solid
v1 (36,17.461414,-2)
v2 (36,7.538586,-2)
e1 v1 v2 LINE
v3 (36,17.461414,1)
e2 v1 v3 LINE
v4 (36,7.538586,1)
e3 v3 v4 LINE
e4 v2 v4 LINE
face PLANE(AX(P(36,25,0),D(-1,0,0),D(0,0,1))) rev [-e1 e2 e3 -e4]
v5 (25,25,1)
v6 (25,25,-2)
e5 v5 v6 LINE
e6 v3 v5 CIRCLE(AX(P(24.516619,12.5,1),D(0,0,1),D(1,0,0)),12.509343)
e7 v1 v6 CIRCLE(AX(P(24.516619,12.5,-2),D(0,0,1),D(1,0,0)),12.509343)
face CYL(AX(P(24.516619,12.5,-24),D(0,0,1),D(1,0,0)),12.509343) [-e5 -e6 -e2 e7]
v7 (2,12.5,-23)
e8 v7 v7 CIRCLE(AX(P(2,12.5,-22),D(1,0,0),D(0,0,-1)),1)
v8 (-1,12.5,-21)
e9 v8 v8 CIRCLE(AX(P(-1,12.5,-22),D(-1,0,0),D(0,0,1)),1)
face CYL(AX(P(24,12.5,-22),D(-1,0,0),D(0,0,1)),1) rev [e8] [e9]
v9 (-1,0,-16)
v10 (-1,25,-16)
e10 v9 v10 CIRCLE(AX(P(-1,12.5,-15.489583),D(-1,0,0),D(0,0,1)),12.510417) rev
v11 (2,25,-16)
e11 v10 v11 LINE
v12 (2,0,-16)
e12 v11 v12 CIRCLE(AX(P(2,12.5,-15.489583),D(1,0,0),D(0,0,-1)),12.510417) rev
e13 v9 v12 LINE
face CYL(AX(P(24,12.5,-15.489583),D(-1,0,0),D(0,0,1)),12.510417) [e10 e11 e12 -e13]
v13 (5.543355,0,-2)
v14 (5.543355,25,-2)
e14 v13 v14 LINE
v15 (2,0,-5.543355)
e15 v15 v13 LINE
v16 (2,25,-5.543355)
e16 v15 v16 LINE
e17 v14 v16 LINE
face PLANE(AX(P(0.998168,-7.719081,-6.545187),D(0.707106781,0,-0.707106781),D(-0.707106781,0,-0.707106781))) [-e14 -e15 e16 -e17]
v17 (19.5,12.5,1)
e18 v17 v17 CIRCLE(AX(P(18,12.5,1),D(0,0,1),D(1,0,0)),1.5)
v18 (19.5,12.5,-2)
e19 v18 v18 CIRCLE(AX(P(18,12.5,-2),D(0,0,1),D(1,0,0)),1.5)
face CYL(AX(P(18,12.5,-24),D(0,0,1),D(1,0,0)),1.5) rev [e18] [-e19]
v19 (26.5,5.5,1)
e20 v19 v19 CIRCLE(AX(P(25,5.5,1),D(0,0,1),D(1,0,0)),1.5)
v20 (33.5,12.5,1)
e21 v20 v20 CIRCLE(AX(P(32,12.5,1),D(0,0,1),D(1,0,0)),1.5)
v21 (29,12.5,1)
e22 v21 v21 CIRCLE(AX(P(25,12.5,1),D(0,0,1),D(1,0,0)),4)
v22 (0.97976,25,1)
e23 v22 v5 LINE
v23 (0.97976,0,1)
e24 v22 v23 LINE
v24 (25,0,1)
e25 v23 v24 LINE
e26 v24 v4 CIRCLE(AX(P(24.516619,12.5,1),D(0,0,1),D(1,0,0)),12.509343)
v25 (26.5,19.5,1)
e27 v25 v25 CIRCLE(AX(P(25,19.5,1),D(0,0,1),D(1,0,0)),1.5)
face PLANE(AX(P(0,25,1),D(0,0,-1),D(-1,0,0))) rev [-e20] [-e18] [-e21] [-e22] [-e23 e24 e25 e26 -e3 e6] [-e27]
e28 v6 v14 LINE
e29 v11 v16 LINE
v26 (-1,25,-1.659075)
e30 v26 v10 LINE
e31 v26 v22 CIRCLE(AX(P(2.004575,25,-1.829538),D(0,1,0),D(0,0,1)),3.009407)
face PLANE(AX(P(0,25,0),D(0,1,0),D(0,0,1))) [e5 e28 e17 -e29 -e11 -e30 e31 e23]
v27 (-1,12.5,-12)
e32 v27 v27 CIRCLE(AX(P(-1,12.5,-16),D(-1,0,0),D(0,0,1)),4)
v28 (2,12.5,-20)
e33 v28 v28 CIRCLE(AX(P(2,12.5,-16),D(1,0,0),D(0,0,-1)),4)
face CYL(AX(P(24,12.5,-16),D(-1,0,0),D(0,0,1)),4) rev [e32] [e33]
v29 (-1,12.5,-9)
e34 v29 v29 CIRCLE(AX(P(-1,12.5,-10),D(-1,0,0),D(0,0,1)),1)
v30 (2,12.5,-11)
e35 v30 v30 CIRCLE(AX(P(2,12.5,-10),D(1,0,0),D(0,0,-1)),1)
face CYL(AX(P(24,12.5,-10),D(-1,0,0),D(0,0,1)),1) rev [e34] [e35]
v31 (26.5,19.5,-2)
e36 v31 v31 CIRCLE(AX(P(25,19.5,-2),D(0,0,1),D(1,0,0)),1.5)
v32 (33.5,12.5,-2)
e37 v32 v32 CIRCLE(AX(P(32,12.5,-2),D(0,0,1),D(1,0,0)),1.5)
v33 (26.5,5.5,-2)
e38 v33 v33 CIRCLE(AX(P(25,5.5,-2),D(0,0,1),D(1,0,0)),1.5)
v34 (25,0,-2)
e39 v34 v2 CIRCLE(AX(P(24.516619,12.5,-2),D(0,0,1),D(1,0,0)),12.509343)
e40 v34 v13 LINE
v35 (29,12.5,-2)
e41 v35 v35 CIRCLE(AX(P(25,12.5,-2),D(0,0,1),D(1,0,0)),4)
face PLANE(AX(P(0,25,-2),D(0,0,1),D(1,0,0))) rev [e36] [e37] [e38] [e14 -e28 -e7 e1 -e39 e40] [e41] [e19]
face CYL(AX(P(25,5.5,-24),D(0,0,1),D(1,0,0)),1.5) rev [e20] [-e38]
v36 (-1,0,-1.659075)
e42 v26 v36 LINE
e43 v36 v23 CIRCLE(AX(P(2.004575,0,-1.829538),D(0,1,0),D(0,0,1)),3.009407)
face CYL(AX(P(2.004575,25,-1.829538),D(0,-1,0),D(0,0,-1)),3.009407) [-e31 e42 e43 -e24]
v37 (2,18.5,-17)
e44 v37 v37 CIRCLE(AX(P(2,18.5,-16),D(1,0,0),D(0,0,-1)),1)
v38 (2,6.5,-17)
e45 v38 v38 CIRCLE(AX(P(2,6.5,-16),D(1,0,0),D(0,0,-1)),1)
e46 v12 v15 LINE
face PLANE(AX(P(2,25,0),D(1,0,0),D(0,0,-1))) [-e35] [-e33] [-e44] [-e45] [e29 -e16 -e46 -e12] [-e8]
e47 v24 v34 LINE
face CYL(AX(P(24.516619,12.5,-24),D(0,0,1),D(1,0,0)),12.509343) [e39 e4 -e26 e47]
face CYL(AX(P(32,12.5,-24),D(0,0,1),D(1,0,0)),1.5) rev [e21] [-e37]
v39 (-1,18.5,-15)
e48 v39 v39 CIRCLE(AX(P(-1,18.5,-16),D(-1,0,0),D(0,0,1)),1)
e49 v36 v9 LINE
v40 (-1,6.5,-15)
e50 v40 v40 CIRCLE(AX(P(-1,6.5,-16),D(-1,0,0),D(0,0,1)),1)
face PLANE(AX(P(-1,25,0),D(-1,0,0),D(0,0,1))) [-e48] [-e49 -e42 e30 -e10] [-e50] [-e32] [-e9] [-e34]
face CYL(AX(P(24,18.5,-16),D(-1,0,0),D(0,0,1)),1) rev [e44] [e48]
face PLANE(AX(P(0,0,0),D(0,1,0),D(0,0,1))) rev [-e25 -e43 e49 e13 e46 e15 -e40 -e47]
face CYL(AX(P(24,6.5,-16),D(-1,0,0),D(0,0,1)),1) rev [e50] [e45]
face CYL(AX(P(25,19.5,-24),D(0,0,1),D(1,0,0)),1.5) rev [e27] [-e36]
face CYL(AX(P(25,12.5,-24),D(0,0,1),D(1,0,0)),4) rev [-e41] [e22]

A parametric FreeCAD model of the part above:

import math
import FreeCAD as App
import Part
import Sketcher
from FreeCAD import Vector


def add_polygon(sketch, points):
    """Adds a closed chain of lines whose ends are joined by coincident constraints."""
    first, n = sketch.GeometryCount, len(points)
    for a, b in zip(points, points[1:] + points[:1]):
        sketch.addGeometry(Part.LineSegment(App.Vector(*a, 0), App.Vector(*b, 0)), False)
    for i in range(n):
        sketch.addConstraint(Sketcher.Constraint("Coincident", first + i, 2, first + (i + 1) % n, 1))

doc = App.newDocument("Part")
body = doc.addObject("PartDesign::Body", "Body")

# Sketch on XZ plane
sketch1 = body.newObject("Sketcher::SketchObject", "Sketch")
sketch1.AttachmentSupport = (doc.getObject("XZ_Plane"), [""])
sketch1.MapMode = "FlatFace"
sketch1.addGeometry(Part.ArcOfCircle(Part.Circle(Vector(2, -1.83, 0), Vector(0, 0, 1), 3.01), math.radians(110), math.radians(177)), False)
sketch1.addGeometry(Part.LineSegment(Vector(0.98, 1, 0), Vector(36, 1, 0)), False)
sketch1.addGeometry(Part.LineSegment(Vector(36, 1, 0), Vector(36, -2, 0)), False)
sketch1.addGeometry(Part.LineSegment(Vector(36, -2, 0), Vector(3.04, -2, 0)), False)
sketch1.addGeometry(Part.ArcOfCircle(Part.Circle(Vector(3, -3, 0), Vector(0, 0, 1), 1), math.radians(87.97), math.radians(92.03)), False)
sketch1.addGeometry(Part.ArcOfCircle(Part.Circle(Vector(3, -3, 0), Vector(0, 0, 1), 1), math.radians(92), math.radians(178)), False)
sketch1.addGeometry(Part.LineSegment(Vector(2, -2.97, 0), Vector(2, -28, 0)), False)
sketch1.addGeometry(Part.LineSegment(Vector(2, -28, 0), Vector(-1, -28, 0)), False)
sketch1.addGeometry(Part.LineSegment(Vector(-1, -28, 0), Vector(-1, -1.66, 0)), False)
sketch1.addConstraint(Sketcher.Constraint("Coincident", 0, 1, 1, 1))
sketch1.addConstraint(Sketcher.Constraint("Coincident", 1, 2, 2, 1))
sketch1.addConstraint(Sketcher.Constraint("Coincident", 2, 2, 3, 1))
sketch1.addConstraint(Sketcher.Constraint("Coincident", 3, 2, 4, 1))
sketch1.addConstraint(Sketcher.Constraint("Tangent", 4, 2, 5, 1))
sketch1.addConstraint(Sketcher.Constraint("Coincident", 5, 2, 6, 1))
sketch1.addConstraint(Sketcher.Constraint("Coincident", 6, 2, 7, 1))
sketch1.addConstraint(Sketcher.Constraint("Coincident", 7, 2, 8, 1))
sketch1.addConstraint(Sketcher.Constraint("Coincident", 8, 2, 0, 2))
sketch1.addConstraint(Sketcher.Constraint("Horizontal", 1))
sketch1.addConstraint(Sketcher.Constraint("Vertical", 2))
sketch1.addConstraint(Sketcher.Constraint("Horizontal", 3))
sketch1.addConstraint(Sketcher.Constraint("Vertical", 6))
sketch1.addConstraint(Sketcher.Constraint("Horizontal", 7))
sketch1.addConstraint(Sketcher.Constraint("Vertical", 8))
sketch1.addConstraint(Sketcher.Constraint("Equal", 4, 5))
sketch1.addConstraint(Sketcher.Constraint("Horizontal", 3, 2, 4, 2))
sketch1.addConstraint(Sketcher.Constraint("Equal", 7, 2))
sketch1.addConstraint(Sketcher.Constraint("DistanceX", 7, 2, 7, 1, 3.0))
sketch1.addConstraint(Sketcher.Constraint("DistanceY", -1, 1, 0, 1, 1.0))
sketch1.addConstraint(Sketcher.Constraint("DistanceX", -1, 1, 1, 2, 36.0))
sketch1.addConstraint(Sketcher.Constraint("DistanceX", -1, 1, 5, 2, 2.0))
sketch1.addConstraint(Sketcher.Constraint("DistanceY", 6, 2, -1, 1, 28.0))
sketch1.addConstraint(Sketcher.Constraint("Radius", 5, 1.003779))
sketch1.addConstraint(Sketcher.Constraint("Radius", 0, 3.009407))
sketch1.addConstraint(Sketcher.Constraint("DistanceX", 1, 1, 1, 2, 35.02024))
sketch1.addConstraint(Sketcher.Constraint("DistanceX", 3, 2, 3, 1, 32.96127))
sketch1.addConstraint(Sketcher.Constraint("DistanceY", 6, 2, 6, 1, 25.032434))
sketch1.addConstraint(Sketcher.Constraint("DistanceY", 8, 1, 8, 2, 26.340925))
pad1 = body.newObject("PartDesign::Pad", "Pad")
pad1.Profile = sketch1
pad1.Length = 25
pad1.Reversed = True

# Sketch on YZ plane
sketch2 = body.newObject("Sketcher::SketchObject", "Sketch001")
sketch2.AttachmentSupport = (doc.getObject("YZ_Plane"), [""])
sketch2.MapMode = "FlatFace"
sketch2.AttachmentOffset = App.Placement(Vector(0, 0, -1), App.Rotation())
sketch2.addGeometry(Part.ArcOfCircle(Part.Circle(Vector(12, -15, 0), Vector(0, 0, 1), 13), math.radians(-90), math.radians(-2)), False)
sketch2.addGeometry(Part.LineSegment(Vector(25, -16, 0), Vector(25, -28, 0)), False)
sketch2.addGeometry(Part.LineSegment(Vector(25, -28, 0), Vector(12, -28, 0)), False)
sketch2.addGeometry(Part.ArcOfCircle(Part.Circle(Vector(12, -15, 0), Vector(0, 0, 1), 13), math.radians(-178), math.radians(-90)), False)
sketch2.addGeometry(Part.LineSegment(Vector(12, -28, 0), Vector(0, -28, 0)), False)
sketch2.addGeometry(Part.LineSegment(Vector(0, -28, 0), Vector(0, -16, 0)), False)
sketch2.addConstraint(Sketcher.Constraint("Coincident", 0, 2, 1, 1))
sketch2.addConstraint(Sketcher.Constraint("Coincident", 1, 2, 2, 1))
sketch2.addConstraint(Sketcher.Constraint("Tangent", 2, 2, 0, 1))
sketch2.addConstraint(Sketcher.Constraint("Tangent", 3, 2, 4, 1))
sketch2.addConstraint(Sketcher.Constraint("Coincident", 4, 2, 5, 1))
sketch2.addConstraint(Sketcher.Constraint("Coincident", 5, 2, 3, 1))
sketch2.addConstraint(Sketcher.Constraint("Vertical", 1))
sketch2.addConstraint(Sketcher.Constraint("Horizontal", 2))
sketch2.addConstraint(Sketcher.Constraint("Horizontal", 4))
sketch2.addConstraint(Sketcher.Constraint("Vertical", 5))
sketch2.addConstraint(Sketcher.Constraint("Coincident", 3, 3, 0, 3))
sketch2.addConstraint(Sketcher.Constraint("Equal", 0, 3))
sketch2.addConstraint(Sketcher.Constraint("PointOnObject", 4, 2, -2))
sketch2.addConstraint(Sketcher.Constraint("Horizontal", 0, 2, 5, 2))
sketch2.addConstraint(Sketcher.Constraint("DistanceY", 1, 2, 1, 1, 12.0))
sketch2.addConstraint(Sketcher.Constraint("DistanceX", 2, 2, 2, 1, 12.5))
sketch2.addConstraint(Sketcher.Constraint("DistanceY", 0, 2, -1, 1, 16.0))
pocket1 = body.newObject("PartDesign::Pocket", "Pocket")
pocket1.Profile = sketch2
pocket1.Length = 25
pocket1.Reversed = True

# Sketch on XY plane
sketch3 = body.newObject("Sketcher::SketchObject", "Sketch002")
sketch3.AttachmentSupport = (doc.getObject("XY_Plane"), [""])
sketch3.MapMode = "FlatFace"
sketch3.AttachmentOffset = App.Placement(Vector(0, 0, 1), App.Rotation())
sketch3.addGeometry(Part.LineSegment(Vector(36, 25, 0), Vector(25, 25, 0)), False)
sketch3.addGeometry(Part.ArcOfCircle(Part.Circle(Vector(25, 12, 0), Vector(0, 0, 1), 13), math.radians(23), math.radians(88)), False)
sketch3.addGeometry(Part.LineSegment(Vector(36, 17, 0), Vector(36, 25, 0)), False)
sketch3.addGeometry(Part.LineSegment(Vector(36, 0, 0), Vector(36, 8, 0)), False)
sketch3.addGeometry(Part.ArcOfCircle(Part.Circle(Vector(25, 12, 0), Vector(0, 0, 1), 13), math.radians(-88), math.radians(-23)), False)
sketch3.addGeometry(Part.LineSegment(Vector(25, 0, 0), Vector(36, 0, 0)), False)
sketch3.addConstraint(Sketcher.Constraint("Coincident", 0, 2, 1, 2))
sketch3.addConstraint(Sketcher.Constraint("Coincident", 1, 1, 2, 1))
sketch3.addConstraint(Sketcher.Constraint("Coincident", 2, 2, 0, 1))
sketch3.addConstraint(Sketcher.Constraint("Coincident", 3, 2, 4, 2))
sketch3.addConstraint(Sketcher.Constraint("Coincident", 4, 1, 5, 1))
sketch3.addConstraint(Sketcher.Constraint("Coincident", 5, 2, 3, 1))
sketch3.addConstraint(Sketcher.Constraint("Horizontal", 0))
sketch3.addConstraint(Sketcher.Constraint("Vertical", 2))
sketch3.addConstraint(Sketcher.Constraint("Vertical", 3))
sketch3.addConstraint(Sketcher.Constraint("Horizontal", 5))
sketch3.addConstraint(Sketcher.Constraint("Coincident", 4, 3, 1, 3))
sketch3.addConstraint(Sketcher.Constraint("Equal", 1, 4))
sketch3.addConstraint(Sketcher.Constraint("PointOnObject", 4, 1, -1))
sketch3.addConstraint(Sketcher.Constraint("Vertical", 2, 2, 3, 2))
sketch3.addConstraint(Sketcher.Constraint("Vertical", 0, 2, 4, 1))
sketch3.addConstraint(Sketcher.Constraint("DistanceX", 0, 2, 0, 1, 11.0))
sketch3.addConstraint(Sketcher.Constraint("DistanceX", -1, 1, 0, 2, 25.0))
sketch3.addConstraint(Sketcher.Constraint("DistanceY", -1, 1, 0, 2, 25.0))
sketch3.addConstraint(Sketcher.Constraint("Radius", 1, 12.509343))
pocket2 = body.newObject("PartDesign::Pocket", "Pocket001")
pocket2.Profile = sketch3
pocket2.Length = 25

# Sketch on XY plane
sketch4 = body.newObject("Sketcher::SketchObject", "Sketch003")
sketch4.AttachmentSupport = (doc.getObject("XY_Plane"), [""])
sketch4.MapMode = "FlatFace"
sketch4.AttachmentOffset = App.Placement(Vector(0, 0, 1), App.Rotation())
sketch4.addGeometry(Part.Circle(Vector(25, 12.5, 0), Vector(0, 0, 1), 4), False)
sketch4.addGeometry(Part.Circle(Vector(25, 19.5, 0), Vector(0, 0, 1), 1.5), False)
sketch4.addGeometry(Part.Circle(Vector(32, 12.5, 0), Vector(0, 0, 1), 1.5), False)
sketch4.addGeometry(Part.Circle(Vector(25, 5.5, 0), Vector(0, 0, 1), 1.5), False)
sketch4.addGeometry(Part.Circle(Vector(18, 12.5, 0), Vector(0, 0, 1), 1.5), False)
sketch4.addConstraint(Sketcher.Constraint("Equal", 1, 2))
sketch4.addConstraint(Sketcher.Constraint("Equal", 2, 3))
sketch4.addConstraint(Sketcher.Constraint("Equal", 3, 4))
sketch4.addConstraint(Sketcher.Constraint("Horizontal", 0, 3, 2, 3))
sketch4.addConstraint(Sketcher.Constraint("Horizontal", 2, 3, 4, 3))
sketch4.addConstraint(Sketcher.Constraint("Vertical", 0, 3, 1, 3))
sketch4.addConstraint(Sketcher.Constraint("Vertical", 1, 3, 3, 3))
sketch4.addConstraint(Sketcher.Constraint("Diameter", 0, 8.0))
sketch4.addConstraint(Sketcher.Constraint("Diameter", 1, 3.0))
sketch4.addConstraint(Sketcher.Constraint("DistanceX", -1, 1, 0, 3, 25.0))
sketch4.addConstraint(Sketcher.Constraint("DistanceX", -1, 1, 2, 3, 32.0))
sketch4.addConstraint(Sketcher.Constraint("DistanceX", -1, 1, 4, 3, 18.0))
sketch4.addConstraint(Sketcher.Constraint("DistanceY", 0, 3, 1, 3, 7.0))
sketch4.addConstraint(Sketcher.Constraint("DistanceY", 3, 3, 0, 3, 7.0))
sketch4.addConstraint(Sketcher.Constraint("DistanceY", -1, 1, 0, 3, 12.5))
pocket3 = body.newObject("PartDesign::Pocket", "Pocket002")
pocket3.Profile = sketch4
pocket3.Length = 25

# Sketch on YZ plane
sketch5 = body.newObject("Sketcher::SketchObject", "Sketch004")
sketch5.AttachmentSupport = (doc.getObject("YZ_Plane"), [""])
sketch5.MapMode = "FlatFace"
sketch5.AttachmentOffset = App.Placement(Vector(0, 0, -1), App.Rotation())
sketch5.addGeometry(Part.Circle(Vector(12.5, -16, 0), Vector(0, 0, 1), 4), False)
sketch5.addGeometry(Part.Circle(Vector(18.5, -16, 0), Vector(0, 0, 1), 1), False)
sketch5.addGeometry(Part.Circle(Vector(12.5, -10, 0), Vector(0, 0, 1), 1), False)
sketch5.addGeometry(Part.Circle(Vector(6.5, -16, 0), Vector(0, 0, 1), 1), False)
sketch5.addGeometry(Part.Circle(Vector(12.5, -22, 0), Vector(0, 0, 1), 1), False)
sketch5.addConstraint(Sketcher.Constraint("Equal", 1, 2))
sketch5.addConstraint(Sketcher.Constraint("Equal", 2, 3))
sketch5.addConstraint(Sketcher.Constraint("Equal", 3, 4))
sketch5.addConstraint(Sketcher.Constraint("Horizontal", 0, 3, 1, 3))
sketch5.addConstraint(Sketcher.Constraint("Horizontal", 1, 3, 3, 3))
sketch5.addConstraint(Sketcher.Constraint("Vertical", 0, 3, 2, 3))
sketch5.addConstraint(Sketcher.Constraint("Vertical", 2, 3, 4, 3))
sketch5.addConstraint(Sketcher.Constraint("Diameter", 0, 8.0))
sketch5.addConstraint(Sketcher.Constraint("Diameter", 1, 2.0))
sketch5.addConstraint(Sketcher.Constraint("DistanceY", 0, 3, -1, 1, 16.0))
sketch5.addConstraint(Sketcher.Constraint("DistanceY", 2, 3, -1, 1, 10.0))
sketch5.addConstraint(Sketcher.Constraint("DistanceY", 4, 3, -1, 1, 22.0))
sketch5.addConstraint(Sketcher.Constraint("DistanceX", 0, 3, 1, 3, 6.0))
sketch5.addConstraint(Sketcher.Constraint("DistanceX", 3, 3, 0, 3, 6.0))
sketch5.addConstraint(Sketcher.Constraint("DistanceX", -1, 1, 0, 3, 12.5))
pocket4 = body.newObject("PartDesign::Pocket", "Pocket003")
pocket4.Profile = sketch5
pocket4.Length = 25
pocket4.Reversed = True

# Sketch on XZ plane
sketch6 = body.newObject("Sketcher::SketchObject", "Sketch005")
sketch6.AttachmentSupport = (doc.getObject("XZ_Plane"), [""])
sketch6.MapMode = "FlatFace"
sketch6.AttachmentOffset = App.Placement(Vector(0, 0, -25), App.Rotation())
add_polygon(sketch6, [(6, -1), (1, -7), (1, -1)])  # lines 0-2
sketch6.addConstraint(Sketcher.Constraint("Vertical", 1))
sketch6.addConstraint(Sketcher.Constraint("Horizontal", 2))
sketch6.addConstraint(Sketcher.Constraint("Equal", 2, 1))
sketch6.addConstraint(Sketcher.Constraint("Distance", 0, 7.719081))
sketch6.addConstraint(Sketcher.Constraint("DistanceX", -1, 1, 0, 2, 0.998168))
sketch6.addConstraint(Sketcher.Constraint("DistanceY", 0, 2, -1, 1, 6.545187))
pad2 = body.newObject("PartDesign::Pad", "Pad001")
pad2.Profile = sketch6
pad2.Length = 25

doc.recompute()
